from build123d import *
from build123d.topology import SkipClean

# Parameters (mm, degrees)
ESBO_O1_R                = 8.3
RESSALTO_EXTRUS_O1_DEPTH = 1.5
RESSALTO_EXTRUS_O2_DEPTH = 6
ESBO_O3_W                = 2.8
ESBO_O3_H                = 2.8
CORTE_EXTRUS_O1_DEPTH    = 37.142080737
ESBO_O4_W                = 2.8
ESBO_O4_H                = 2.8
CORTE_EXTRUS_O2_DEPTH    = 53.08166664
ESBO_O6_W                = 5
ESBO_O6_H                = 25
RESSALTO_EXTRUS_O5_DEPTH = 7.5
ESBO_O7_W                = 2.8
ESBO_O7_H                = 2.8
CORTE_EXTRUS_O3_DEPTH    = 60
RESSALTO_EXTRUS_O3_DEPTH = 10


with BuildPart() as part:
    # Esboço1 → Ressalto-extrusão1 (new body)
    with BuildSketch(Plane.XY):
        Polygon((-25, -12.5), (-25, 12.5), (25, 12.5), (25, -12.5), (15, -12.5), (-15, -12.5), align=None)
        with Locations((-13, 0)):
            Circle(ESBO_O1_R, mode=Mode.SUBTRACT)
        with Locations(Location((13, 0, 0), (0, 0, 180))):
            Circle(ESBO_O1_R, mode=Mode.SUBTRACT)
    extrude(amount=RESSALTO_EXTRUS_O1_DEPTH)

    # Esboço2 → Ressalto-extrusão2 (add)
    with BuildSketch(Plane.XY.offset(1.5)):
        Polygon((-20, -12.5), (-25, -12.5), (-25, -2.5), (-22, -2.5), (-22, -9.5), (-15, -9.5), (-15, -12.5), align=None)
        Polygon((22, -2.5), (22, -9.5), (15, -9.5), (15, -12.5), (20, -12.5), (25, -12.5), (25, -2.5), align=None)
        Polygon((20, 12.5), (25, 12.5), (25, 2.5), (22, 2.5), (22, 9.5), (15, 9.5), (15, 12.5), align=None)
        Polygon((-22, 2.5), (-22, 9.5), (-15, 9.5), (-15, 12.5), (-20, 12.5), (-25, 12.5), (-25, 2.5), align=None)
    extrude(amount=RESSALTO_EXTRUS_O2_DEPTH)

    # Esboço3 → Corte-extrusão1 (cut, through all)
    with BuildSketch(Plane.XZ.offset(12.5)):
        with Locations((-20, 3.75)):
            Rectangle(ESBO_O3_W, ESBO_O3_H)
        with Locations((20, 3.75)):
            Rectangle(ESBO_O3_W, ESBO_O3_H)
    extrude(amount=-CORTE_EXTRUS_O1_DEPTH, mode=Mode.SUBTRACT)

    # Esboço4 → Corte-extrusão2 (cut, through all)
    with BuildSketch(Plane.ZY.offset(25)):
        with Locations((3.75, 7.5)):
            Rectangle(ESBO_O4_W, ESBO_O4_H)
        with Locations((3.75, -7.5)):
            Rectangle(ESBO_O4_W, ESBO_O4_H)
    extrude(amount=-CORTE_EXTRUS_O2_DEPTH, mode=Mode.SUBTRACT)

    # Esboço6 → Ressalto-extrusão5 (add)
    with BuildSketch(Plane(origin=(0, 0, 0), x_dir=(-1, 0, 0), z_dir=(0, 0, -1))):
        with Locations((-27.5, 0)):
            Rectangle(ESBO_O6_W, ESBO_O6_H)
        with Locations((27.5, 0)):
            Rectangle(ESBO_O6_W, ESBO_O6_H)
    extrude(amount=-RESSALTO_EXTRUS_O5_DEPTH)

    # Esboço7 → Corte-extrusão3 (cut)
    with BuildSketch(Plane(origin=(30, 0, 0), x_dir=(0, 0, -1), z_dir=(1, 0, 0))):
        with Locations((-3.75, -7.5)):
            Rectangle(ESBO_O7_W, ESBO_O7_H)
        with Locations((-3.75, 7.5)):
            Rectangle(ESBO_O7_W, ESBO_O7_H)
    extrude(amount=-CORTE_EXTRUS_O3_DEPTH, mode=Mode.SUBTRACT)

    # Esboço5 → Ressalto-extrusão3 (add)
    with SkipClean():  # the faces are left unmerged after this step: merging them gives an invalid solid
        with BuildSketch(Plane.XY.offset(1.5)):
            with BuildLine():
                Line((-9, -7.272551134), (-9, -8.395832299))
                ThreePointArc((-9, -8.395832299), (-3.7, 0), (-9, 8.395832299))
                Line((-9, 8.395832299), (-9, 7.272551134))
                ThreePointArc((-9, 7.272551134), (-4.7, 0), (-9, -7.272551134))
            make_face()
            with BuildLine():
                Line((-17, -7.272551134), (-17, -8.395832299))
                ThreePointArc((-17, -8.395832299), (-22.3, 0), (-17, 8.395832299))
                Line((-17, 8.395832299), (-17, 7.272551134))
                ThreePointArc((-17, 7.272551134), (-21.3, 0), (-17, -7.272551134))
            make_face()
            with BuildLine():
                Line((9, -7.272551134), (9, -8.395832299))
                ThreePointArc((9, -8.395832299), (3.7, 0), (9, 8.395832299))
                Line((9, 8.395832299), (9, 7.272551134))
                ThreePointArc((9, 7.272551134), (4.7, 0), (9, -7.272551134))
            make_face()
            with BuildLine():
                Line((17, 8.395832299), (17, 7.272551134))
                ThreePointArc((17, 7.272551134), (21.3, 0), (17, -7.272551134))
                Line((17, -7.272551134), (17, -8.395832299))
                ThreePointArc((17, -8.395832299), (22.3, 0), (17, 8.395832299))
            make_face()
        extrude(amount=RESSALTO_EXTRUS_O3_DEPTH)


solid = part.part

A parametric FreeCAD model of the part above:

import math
import FreeCAD as App
import Part
import Sketcher


def add_polygon(sketch, points):
    """Adds a closed chain of lines whose ends are joined by coincident constraints."""
    first, n = sketch.GeometryCount, len(points)
    for a, b in zip(points, points[1:] + points[:1]):
        sketch.addGeometry(Part.LineSegment(App.Vector(*a, 0), App.Vector(*b, 0)), False)
    for i in range(n):
        sketch.addConstraint(Sketcher.Constraint("Coincident", first + i, 2, first + (i + 1) % n, 1))

doc = App.newDocument("Part")
body = doc.addObject("PartDesign::Body", "Body")

sketch1 = body.newObject("Sketcher::SketchObject", "Sketch")
sketch1.AttachmentSupport = (doc.getObject("XY_Plane"), [""])
sketch1.MapMode = "FlatFace"
add_polygon(sketch1, [(-25, 12), (-25, -12), (25, -12), (25, 12)])
sketch1.addGeometry(Part.Circle(App.Vector(13, 0, 0), App.Vector(0, 0, 1), 8), False)
sketch1.addGeometry(Part.Circle(App.Vector(-13, 0, 0), App.Vector(0, 0, 1), 8), False)
sketch1.addConstraint(Sketcher.Constraint("Vertical", 0))
sketch1.addConstraint(Sketcher.Constraint("Horizontal", 1))
sketch1.addConstraint(Sketcher.Constraint("Vertical", 2))
sketch1.addConstraint(Sketcher.Constraint("Horizontal", 3))
sketch1.addConstraint(Sketcher.Constraint("Equal", 4, 5))
sketch1.addConstraint(Sketcher.Constraint("Symmetric", 4, 3, 5, 3, -1, 1))
sketch1.addConstraint(Sketcher.Constraint("Symmetric", 0, 2, 2, 2, -1, 1))
sketch1.addConstraint(Sketcher.Constraint("PointOnObject", 4, 3, -1))
sketch1.addConstraint(Sketcher.Constraint("Diameter", 4, 16.6))
sketch1.addConstraint(Sketcher.Constraint("DistanceX", 1, 1, 1, 2, 50.0))
sketch1.addConstraint(Sketcher.Constraint("DistanceY", 0, 2, 0, 1, 25.0))
sketch1.addConstraint(Sketcher.Constraint("DistanceX", -1, 1, 4, 3, 13.0))
pad1 = body.newObject("PartDesign::Pad", "Pad")
pad1.Profile = sketch1
pad1.Length = 1.5

sketch2 = body.newObject("Sketcher::SketchObject", "Sketch001")
sketch2.AttachmentSupport = (doc.getObject("XY_Plane"), [""])
sketch2.MapMode = "FlatFace"
sketch2.AttachmentOffset = App.Placement(App.Vector(0, 0, 1.5), App.Rotation())
add_polygon(sketch2, [(-25, -12.5), (-15, -12.5), (-15, -9.5), (-22, -9.5), (-22, -2.5), (-25, -2.5)])
add_polygon(sketch2, [(22, -2.5), (22, -9.5), (15, -9.5), (15, -12.5), (25, -12.5), (25, -2.5)])
add_polygon(sketch2, [(25, 12.5), (15, 12.5), (15, 9.5), (22, 9.5), (22, 2.5), (25, 2.5)])
add_polygon(sketch2, [(-22, 2.5), (-22, 9.5), (-15, 9.5), (-15, 12.5), (-25, 12.5), (-25, 2.5)])
sketch2.addConstraint(Sketcher.Constraint("Horizontal", 0))
sketch2.addConstraint(Sketcher.Constraint("Vertical", 1))
sketch2.addConstraint(Sketcher.Constraint("Horizontal", 2))
sketch2.addConstraint(Sketcher.Constraint("Vertical", 3))
sketch2.addConstraint(Sketcher.Constraint("Horizontal", 4))
sketch2.addConstraint(Sketcher.Constraint("Vertical", 5))
sketch2.addConstraint(Sketcher.Constraint("Vertical", 6))
sketch2.addConstraint(Sketcher.Constraint("Horizontal", 7))
sketch2.addConstraint(Sketcher.Constraint("Vertical", 8))
sketch2.addConstraint(Sketcher.Constraint("Horizontal", 9))
sketch2.addConstraint(Sketcher.Constraint("Vertical", 10))
sketch2.addConstraint(Sketcher.Constraint("Horizontal", 11))
sketch2.addConstraint(Sketcher.Constraint("Horizontal", 12))
sketch2.addConstraint(Sketcher.Constraint("Vertical", 13))
sketch2.addConstraint(Sketcher.Constraint("Horizontal", 14))
sketch2.addConstraint(Sketcher.Constraint("Vertical", 15))
sketch2.addConstraint(Sketcher.Constraint("Horizontal", 16))
sketch2.addConstraint(Sketcher.Constraint("Vertical", 17))
sketch2.addConstraint(Sketcher.Constraint("Vertical", 18))
sketch2.addConstraint(Sketcher.Constraint("Horizontal", 19))
sketch2.addConstraint(Sketcher.Constraint("Vertical", 20))
sketch2.addConstraint(Sketcher.Constraint("Horizontal", 21))
sketch2.addConstraint(Sketcher.Constraint("Vertical", 22))
sketch2.addConstraint(Sketcher.Constraint("Horizontal", 23))
sketch2.addConstraint(Sketcher.Constraint("Symmetric", 0, 2, 12, 2, -1, 1))
sketch2.addConstraint(Sketcher.Constraint("Symmetric", 2, 2, 14, 2, -1, 1))
sketch2.addConstraint(Sketcher.Constraint("Symmetric", 4, 2, 16, 2, -1, 1))
sketch2.addConstraint(Sketcher.Constraint("Symmetric", 6, 2, 18, 2, -1, 1))
sketch2.addConstraint(Sketcher.Constraint("Symmetric", 8, 2, 20, 2, -1, 1))
sketch2.addConstraint(Sketcher.Constraint("Symmetric", 10, 2, 22, 2, -1, 1))
sketch2.addConstraint(Sketcher.Constraint("Symmetric", 2, 2, 6, 2, -2))
sketch2.addConstraint(Sketcher.Constraint("Symmetric", 0, 2, 8, 2, -2))
sketch2.addConstraint(Sketcher.Constraint("Symmetric", 4, 2, 10, 2, -2))
sketch2.addConstraint(Sketcher.Constraint("Equal", 23, 1))
sketch2.addConstraint(Sketcher.Constraint("Equal", 19, 3))
sketch2.addConstraint(Sketcher.Constraint("DistanceX", 0, 1, 0, 2, 10.0))
sketch2.addConstraint(Sketcher.Constraint("DistanceX", 2, 2, 2, 1, 7.0))
sketch2.addConstraint(Sketcher.Constraint("DistanceX", 0, 2, -1, 1, 15.0))
sketch2.addConstraint(Sketcher.Constraint("DistanceY", 11, 2, 12, 2, 15.0))
pad2 = body.newObject("PartDesign::Pad", "Pad001")
pad2.Profile = sketch2
pad2.Length = 6

sketch3 = body.newObject("Sketcher::SketchObject", "Sketch002")
sketch3.AttachmentSupport = (doc.getObject("XZ_Plane"), [""])
sketch3.MapMode = "FlatFace"
sketch3.AttachmentOffset = App.Placement(App.Vector(0, 0, 12.5), App.Rotation())
add_polygon(sketch3, [(-21.4, 5.2), (-21.4, 2.4), (-18.6, 2.4), (-18.6, 5.2)])
add_polygon(sketch3, [(18.6, 5.2), (18.6, 2.4), (21.4, 2.4), (21.4, 5.2)])
sketch3.addConstraint(Sketcher.Constraint("Vertical", 0))
sketch3.addConstraint(Sketcher.Constraint("Horizontal", 1))
sketch3.addConstraint(Sketcher.Constraint("Vertical", 2))
sketch3.addConstraint(Sketcher.Constraint("Horizontal", 3))
sketch3.addConstraint(Sketcher.Constraint("Vertical", 4))
sketch3.addConstraint(Sketcher.Constraint("Horizontal", 5))
sketch3.addConstraint(Sketcher.Constraint("Vertical", 6))
sketch3.addConstraint(Sketcher.Constraint("Horizontal", 7))
sketch3.addConstraint(Sketcher.Constraint("Symmetric", 1, 2, 4, 2, -2))
sketch3.addConstraint(Sketcher.Constraint("Symmetric", 3, 2, 6, 2, -2))
sketch3.addConstraint(Sketcher.Constraint("Equal", 7, 0))
sketch3.addConstraint(Sketcher.Constraint("DistanceX", 1, 1, 1, 2, 2.8))
sketch3.addConstraint(Sketcher.Constraint("DistanceX", 0, 2, 4, 2, 40.0))
sketch3.addConstraint(Sketcher.Constraint("DistanceY", -1, 1, 0, 2, 2.35))
pocket1 = body.newObject("PartDesign::Pocket", "Pocket")
pocket1.Profile = sketch3
pocket1.Type = "ThroughAll"

sketch4 = body.newObject("Sketcher::SketchObject", "Sketch003")
sketch4.AttachmentSupport = (doc.getObject("YZ_Plane"), [""])
sketch4.MapMode = "FlatFace"
sketch4.AttachmentOffset = App.Placement(App.Vector(0, 0, -25), App.Rotation())
add_polygon(sketch4, [(8.9, 2.4), (6.1, 2.4), (6.1, 5.2), (8.9, 5.2)])
add_polygon(sketch4, [(-6.1, 2.4), (-8.9, 2.4), (-8.9, 5.2), (-6.1, 5.2)])
sketch4.addConstraint(Sketcher.Constraint("Horizontal", 0))
sketch4.addConstraint(Sketcher.Constraint("Vertical", 1))
sketch4.addConstraint(Sketcher.Constraint("Horizontal", 2))
sketch4.addConstraint(Sketcher.Constraint("Vertical", 3))
sketch4.addConstraint(Sketcher.Constraint("Horizontal", 4))
sketch4.addConstraint(Sketcher.Constraint("Vertical", 5))
sketch4.addConstraint(Sketcher.Constraint("Horizontal", 6))
sketch4.addConstraint(Sketcher.Constraint("Vertical", 7))
sketch4.addConstraint(Sketcher.Constraint("Symmetric", 3, 2, 4, 2, -2))
sketch4.addConstraint(Sketcher.Constraint("Symmetric", 1, 2, 6, 2, -2))
sketch4.addConstraint(Sketcher.Constraint("Equal", 6, 1))
sketch4.addConstraint(Sketcher.Constraint("DistanceX", 0, 2, 0, 1, 2.8))
sketch4.addConstraint(Sketcher.Constraint("DistanceX", 4, 2, 0, 2, 15.0))
sketch4.addConstraint(Sketcher.Constraint("DistanceY", -1, 1, 0, 2, 2.35))
pocket2 = body.newObject("PartDesign::Pocket", "Pocket001")
pocket2.Profile = sketch4
pocket2.Type = "ThroughAll"
pocket2.Reversed = True

sketch5 = body.newObject("Sketcher::SketchObject", "Sketch004")
sketch5.AttachmentSupport = (doc.getObject("XY_Plane"), [""])
sketch5.MapMode = "FlatFace"
add_polygon(sketch5, [(30, 12), (30, -12), (25, -12), (25, 12)])
add_polygon(sketch5, [(-25, 12), (-25, -12), (-30, -12), (-30, 12)])
sketch5.addConstraint(Sketcher.Constraint("Vertical", 0))
sketch5.addConstraint(Sketcher.Constraint("Horizontal", 1))
sketch5.addConstraint(Sketcher.Constraint("Vertical", 2))
sketch5.addConstraint(Sketcher.Constraint("Horizontal", 3))
sketch5.addConstraint(Sketcher.Constraint("Vertical", 4))
sketch5.addConstraint(Sketcher.Constraint("Horizontal", 5))
sketch5.addConstraint(Sketcher.Constraint("Vertical", 6))
sketch5.addConstraint(Sketcher.Constraint("Horizontal", 7))
sketch5.addConstraint(Sketcher.Constraint("Symmetric", 2, 2, 4, 2, -1, 1))
sketch5.addConstraint(Sketcher.Constraint("Symmetric", 0, 2, 6, 2, -1, 1))
sketch5.addConstraint(Sketcher.Constraint("Horizontal", 1, 2, 4, 2))
sketch5.addConstraint(Sketcher.Constraint("DistanceX", 1, 2, 1, 1, 5.0))
sketch5.addConstraint(Sketcher.Constraint("DistanceY", 0, 2, 0, 1, 25.0))
sketch5.addConstraint(Sketcher.Constraint("DistanceX", -1, 1, 0, 2, 30.0))
pad3 = body.newObject("PartDesign::Pad", "Pad002")
pad3.Profile = sketch5
pad3.Length = 7.5

sketch6 = body.newObject("Sketcher::SketchObject", "Sketch005")
sketch6.AttachmentSupport = (doc.getObject("YZ_Plane"), [""])
sketch6.MapMode = "FlatFace"
sketch6.AttachmentOffset = App.Placement(App.Vector(0, 0, 30), App.Rotation())
add_polygon(sketch6, [(-6.1, 5.2), (-8.9, 5.2), (-8.9, 2.4), (-6.1, 2.4)])
add_polygon(sketch6, [(8.9, 5.2), (6.1, 5.2), (6.1, 2.4), (8.9, 2.4)])
sketch6.addConstraint(Sketcher.Constraint("Horizontal", 0))
sketch6.addConstraint(Sketcher.Constraint("Vertical", 1))
sketch6.addConstraint(Sketcher.Constraint("Horizontal", 2))
sketch6.addConstraint(Sketcher.Constraint("Vertical", 3))
sketch6.addConstraint(Sketcher.Constraint("Horizontal", 4))
sketch6.addConstraint(Sketcher.Constraint("Vertical", 5))
sketch6.addConstraint(Sketcher.Constraint("Horizontal", 6))
sketch6.addConstraint(Sketcher.Constraint("Vertical", 7))
sketch6.addConstraint(Sketcher.Constraint("Symmetric", 3, 2, 4, 2, -2))
sketch6.addConstraint(Sketcher.Constraint("Symmetric", 1, 2, 6, 2, -2))
sketch6.addConstraint(Sketcher.Constraint("Equal", 6, 1))
sketch6.addConstraint(Sketcher.Constraint("DistanceX", 0, 2, 0, 1, 2.8))
sketch6.addConstraint(Sketcher.Constraint("DistanceX", 0, 2, 4, 2, 15.0))
sketch6.addConstraint(Sketcher.Constraint("DistanceY", -1, 1, 0, 2, 5.15))
pocket3 = body.newObject("PartDesign::Pocket", "Pocket002")
pocket3.Profile = sketch6
pocket3.Length = 60

sketch7 = body.newObject("Sketcher::SketchObject", "Sketch006")
sketch7.AttachmentSupport = (doc.getObject("XY_Plane"), [""])
sketch7.MapMode = "FlatFace"
sketch7.AttachmentOffset = App.Placement(App.Vector(0, 0, 1.5), App.Rotation())
sketch7.addGeometry(Part.LineSegment(App.Vector(-9, -7.3, 0), App.Vector(-9, -8.4, 0)), False)
sketch7.addGeometry(Part.ArcOfCircle(Part.Circle(App.Vector(-13, 0, 0), App.Vector(0, 0, 1), 9.3), math.radians(-65), math.radians(65)), False)
sketch7.addGeometry(Part.LineSegment(App.Vector(-9, 8.4, 0), App.Vector(-9, 7.3, 0)), False)
sketch7.addGeometry(Part.ArcOfCircle(Part.Circle(App.Vector(-13, 0, 0), App.Vector(0, 0, 1), 8.3), math.radians(-61), math.radians(61)), False)
sketch7.addGeometry(Part.LineSegment(App.Vector(-17, -8.4, 0), App.Vector(-17, -7.3, 0)), False)
sketch7.addGeometry(Part.ArcOfCircle(Part.Circle(App.Vector(-13, 0, 0), App.Vector(0, 0, 1), 8.3), math.radians(119), math.radians(241)), False)
sketch7.addGeometry(Part.LineSegment(App.Vector(-17, 7.3, 0), App.Vector(-17, 8.4, 0)), False)
sketch7.addGeometry(Part.ArcOfCircle(Part.Circle(App.Vector(-13, 0, 0), App.Vector(0, 0, 1), 9.3), math.radians(115), math.radians(245)), False)
sketch7.addGeometry(Part.LineSegment(App.Vector(9, -8.4, 0), App.Vector(9, -7.3, 0)), False)
sketch7.addGeometry(Part.ArcOfCircle(Part.Circle(App.Vector(13, 0, 0), App.Vector(0, 0, 1), 8.3), math.radians(119), math.radians(241)), False)
sketch7.addGeometry(Part.LineSegment(App.Vector(9, 7.3, 0), App.Vector(9, 8.4, 0)), False)
sketch7.addGeometry(Part.ArcOfCircle(Part.Circle(App.Vector(13, 0, 0), App.Vector(0, 0, 1), 9.3), math.radians(115), math.radians(245)), False)
sketch7.addGeometry(Part.LineSegment(App.Vector(17, 8.4, 0), App.Vector(17, 7.3, 0)), False)
sketch7.addGeometry(Part.ArcOfCircle(Part.Circle(App.Vector(13, 0, 0), App.Vector(0, 0, 1), 8.3), math.radians(-61), math.radians(61)), False)
sketch7.addGeometry(Part.LineSegment(App.Vector(17, -7.3, 0), App.Vector(17, -8.4, 0)), False)
sketch7.addGeometry(Part.ArcOfCircle(Part.Circle(App.Vector(13, 0, 0), App.Vector(0, 0, 1), 9.3), math.radians(-65), math.radians(65)), False)
sketch7.addConstraint(Sketcher.Constraint("Coincident", 0, 2, 1, 1))
sketch7.addConstraint(Sketcher.Constraint("Coincident", 1, 2, 2, 1))
sketch7.addConstraint(Sketcher.Constraint("Coincident", 2, 2, 3, 2))
sketch7.addConstraint(Sketcher.Constraint("Coincident", 3, 1, 0, 1))
sketch7.addConstraint(Sketcher.Constraint("Coincident", 4, 2, 5, 2))
sketch7.addConstraint(Sketcher.Constraint("Coincident", 5, 1, 6, 1))
sketch7.addConstraint(Sketcher.Constraint("Coincident", 6, 2, 7, 1))
sketch7.addConstraint(Sketcher.Constraint("Coincident", 7, 2, 4, 1))
sketch7.addConstraint(Sketcher.Constraint("Coincident", 8, 2, 9, 2))
sketch7.addConstraint(Sketcher.Constraint("Coincident", 9, 1, 10, 1))
sketch7.addConstraint(Sketcher.Constraint("Coincident", 10, 2, 11, 1))
sketch7.addConstraint(Sketcher.Constraint("Coincident", 11, 2, 8, 1))
sketch7.addConstraint(Sketcher.Constraint("Coincident", 12, 2, 13, 2))
sketch7.addConstraint(Sketcher.Constraint("Coincident", 13, 1, 14, 1))
sketch7.addConstraint(Sketcher.Constraint("Coincident", 14, 2, 15, 1))
sketch7.addConstraint(Sketcher.Constraint("Coincident", 15, 2, 12, 1))
sketch7.addConstraint(Sketcher.Constraint("Vertical", 0))
sketch7.addConstraint(Sketcher.Constraint("Vertical", 2))
sketch7.addConstraint(Sketcher.Constraint("Vertical", 4))
sketch7.addConstraint(Sketcher.Constraint("Vertical", 6))
sketch7.addConstraint(Sketcher.Constraint("Vertical", 8))
sketch7.addConstraint(Sketcher.Constraint("Vertical", 10))
sketch7.addConstraint(Sketcher.Constraint("Vertical", 12))
sketch7.addConstraint(Sketcher.Constraint("Vertical", 14))
sketch7.addConstraint(Sketcher.Constraint("Coincident", 3, 3, 1, 3))
sketch7.addConstraint(Sketcher.Constraint("Coincident", 5, 3, 1, 3))
sketch7.addConstraint(Sketcher.Constraint("Coincident", 7, 3, 1, 3))
sketch7.addConstraint(Sketcher.Constraint("Coincident", 11, 3, 9, 3))
sketch7.addConstraint(Sketcher.Constraint("Coincident", 13, 3, 9, 3))
sketch7.addConstraint(Sketcher.Constraint("Coincident", 15, 3, 9, 3))
sketch7.addConstraint(Sketcher.Constraint("Equal", 3, 5))
sketch7.addConstraint(Sketcher.Constraint("Equal", 1, 7))
sketch7.addConstraint(Sketcher.Constraint("Equal", 5, 9))
sketch7.addConstraint(Sketcher.Constraint("Equal", 7, 11))
sketch7.addConstraint(Sketcher.Constraint("Equal", 9, 13))
sketch7.addConstraint(Sketcher.Constraint("Equal", 11, 15))
sketch7.addConstraint(Sketcher.Constraint("Symmetric", 1, 3, 9, 3, -1, 1))
sketch7.addConstraint(Sketcher.Constraint("Symmetric", 3, 1, 8, 2, -2))
sketch7.addConstraint(Sketcher.Constraint("Horizontal", 3, 1, 4, 2))
sketch7.addConstraint(Sketcher.Constraint("Horizontal", 2, 2, 5, 1))
sketch7.addConstraint(Sketcher.Constraint("Horizontal", 5, 1, 9, 1))
sketch7.addConstraint(Sketcher.Constraint("Horizontal", 9, 1, 12, 2))
sketch7.addConstraint(Sketcher.Constraint("Horizontal", 8, 2, 13, 1))
sketch7.addConstraint(Sketcher.Constraint("Vertical", 0, 2, 1, 2))
sketch7.addConstraint(Sketcher.Constraint("Radius", 1, 9.3))
sketch7.addConstraint(Sketcher.Constraint("Radius", 3, 8.3))
sketch7.addConstraint(Sketcher.Constraint("DistanceX", 1, 3, -1, 1, 13.0))
sketch7.addConstraint(Sketcher.Constraint("DistanceX", 0, 2, -1, 1, 9.0))
pad4 = body.newObject("PartDesign::Pad", "Pad003")
pad4.Profile = sketch7
pad4.Length = 10

doc.recompute()
